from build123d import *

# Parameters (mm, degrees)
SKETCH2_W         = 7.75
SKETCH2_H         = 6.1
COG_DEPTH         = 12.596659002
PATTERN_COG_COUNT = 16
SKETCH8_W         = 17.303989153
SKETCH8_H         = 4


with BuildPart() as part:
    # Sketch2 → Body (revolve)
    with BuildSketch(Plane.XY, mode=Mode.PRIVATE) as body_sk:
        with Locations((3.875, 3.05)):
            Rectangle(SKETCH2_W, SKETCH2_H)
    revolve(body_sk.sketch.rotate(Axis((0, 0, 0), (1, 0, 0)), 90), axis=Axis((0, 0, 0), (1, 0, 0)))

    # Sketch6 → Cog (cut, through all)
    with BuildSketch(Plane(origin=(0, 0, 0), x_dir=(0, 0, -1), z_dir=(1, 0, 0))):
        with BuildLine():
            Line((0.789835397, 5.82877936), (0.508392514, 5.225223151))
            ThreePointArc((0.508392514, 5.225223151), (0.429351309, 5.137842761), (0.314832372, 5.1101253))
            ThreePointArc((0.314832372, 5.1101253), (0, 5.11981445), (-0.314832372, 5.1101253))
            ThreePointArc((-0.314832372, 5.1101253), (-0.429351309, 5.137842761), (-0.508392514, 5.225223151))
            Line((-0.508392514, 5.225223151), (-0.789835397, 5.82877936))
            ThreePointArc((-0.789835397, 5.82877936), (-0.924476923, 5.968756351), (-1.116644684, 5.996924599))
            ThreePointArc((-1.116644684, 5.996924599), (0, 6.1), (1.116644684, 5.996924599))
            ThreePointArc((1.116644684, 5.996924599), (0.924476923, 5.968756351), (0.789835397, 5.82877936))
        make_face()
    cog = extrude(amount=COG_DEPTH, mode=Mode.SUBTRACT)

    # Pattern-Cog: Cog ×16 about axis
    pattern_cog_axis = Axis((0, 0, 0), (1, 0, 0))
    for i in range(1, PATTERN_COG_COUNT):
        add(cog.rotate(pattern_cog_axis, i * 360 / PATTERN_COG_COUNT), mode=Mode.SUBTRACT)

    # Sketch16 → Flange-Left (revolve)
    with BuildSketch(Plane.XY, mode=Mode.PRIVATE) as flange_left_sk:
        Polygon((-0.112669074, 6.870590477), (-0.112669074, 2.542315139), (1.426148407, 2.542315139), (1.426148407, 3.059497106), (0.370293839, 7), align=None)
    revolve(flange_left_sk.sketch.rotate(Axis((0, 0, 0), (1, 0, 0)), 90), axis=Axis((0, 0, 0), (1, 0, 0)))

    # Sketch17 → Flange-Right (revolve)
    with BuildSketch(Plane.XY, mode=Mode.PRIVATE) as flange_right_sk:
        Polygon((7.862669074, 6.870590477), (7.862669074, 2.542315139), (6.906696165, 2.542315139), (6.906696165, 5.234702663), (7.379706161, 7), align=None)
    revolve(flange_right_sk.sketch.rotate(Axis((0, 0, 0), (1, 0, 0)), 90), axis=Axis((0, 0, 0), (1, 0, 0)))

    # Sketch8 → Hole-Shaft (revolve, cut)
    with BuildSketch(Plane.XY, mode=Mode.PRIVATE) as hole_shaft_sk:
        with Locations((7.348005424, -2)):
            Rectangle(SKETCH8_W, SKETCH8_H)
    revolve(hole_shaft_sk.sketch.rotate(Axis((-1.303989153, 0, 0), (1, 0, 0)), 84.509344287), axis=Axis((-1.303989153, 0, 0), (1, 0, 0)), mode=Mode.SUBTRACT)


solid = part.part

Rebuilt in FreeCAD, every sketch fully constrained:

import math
import FreeCAD as App
import Part
import Sketcher
Q = App.Units.Quantity


def add_polygon(sketch, points):
    """Adds a closed chain of lines whose ends are joined by coincident constraints."""
    first, n = sketch.GeometryCount, len(points)
    for a, b in zip(points, points[1:] + points[:1]):
        sketch.addGeometry(Part.LineSegment(App.Vector(*a, 0), App.Vector(*b, 0)), False)
    for i in range(n):
        sketch.addConstraint(Sketcher.Constraint("Coincident", first + i, 2, first + (i + 1) % n, 1))

doc = App.newDocument("Part")
body = doc.addObject("PartDesign::Body", "Body")

# Sketch on XY plane
sketch1 = doc.addObject("Sketcher::SketchObject", "Sketch")
body.addObject(sketch1)
sketch1.AttachmentSupport = (doc.XY_Plane, [""])
sketch1.MapMode = "FlatFace"
add_polygon(sketch1, [(0, 6), (0, 0), (8, 0), (8, 6)])  # lines 0-3
sketch1.addConstraint(Sketcher.Constraint("Vertical", 0))
sketch1.addConstraint(Sketcher.Constraint("Horizontal", 1))
sketch1.addConstraint(Sketcher.Constraint("Vertical", 2))
sketch1.addConstraint(Sketcher.Constraint("Horizontal", 3))
sketch1.addConstraint(Sketcher.Constraint("Coincident", 0, 2, -1, 1))
sketch1.addConstraint(Sketcher.Constraint("DistanceY", 0, 2, 0, 1, Q("6.1 mm")))
sketch1.addConstraint(Sketcher.Constraint("DistanceX", 1, 1, 1, 2, Q("7.75 mm")))
revolution = doc.addObject("PartDesign::Revolution", "Revolution")
body.addObject(revolution)
revolution.Profile = sketch1
revolution.ReferenceAxis = (sketch1, ["H_Axis"])
revolution.Angle = 360

# Sketch on YZ plane
sketch2 = doc.addObject("Sketcher::SketchObject", "Sketch001")
body.addObject(sketch2)
sketch2.AttachmentSupport = (doc.YZ_Plane, [""])
sketch2.MapMode = "FlatFace"
sketch2.addGeometry(Part.LineSegment(App.Vector(5.23, -0.51, 0), App.Vector(5.83, -0.79, 0)), False)
sketch2.addGeometry(Part.ArcOfCircle(Part.Circle(App.Vector(5.7, -1.06, 0), App.Vector(0, 0, 1), 0.3), math.radians(-11), math.radians(65)), False)
sketch2.addGeometry(Part.ArcOfCircle(Part.Circle(App.Vector(0, 0, 0), App.Vector(0, 0, 1), 6.1), math.radians(-11), math.radians(11)), False)
sketch2.addGeometry(Part.ArcOfCircle(Part.Circle(App.Vector(5.7, 1.06, 0), App.Vector(0, 0, 1), 0.3), math.radians(-65), math.radians(11)), False)
sketch2.addGeometry(Part.LineSegment(App.Vector(5.83, 0.79, 0), App.Vector(5.23, 0.51, 0)), False)
sketch2.addGeometry(Part.ArcOfCircle(Part.Circle(App.Vector(5.31, 0.33, 0), App.Vector(0, 0, 1), 0.2), math.radians(115), math.radians(184)), False)
sketch2.addGeometry(Part.ArcOfCircle(Part.Circle(App.Vector(0, 0, 0), App.Vector(0, 0, 1), 5.12), math.radians(-3.53), math.radians(3.53)), False)
sketch2.addGeometry(Part.ArcOfCircle(Part.Circle(App.Vector(5.31, -0.33, 0), App.Vector(0, 0, 1), 0.2), math.radians(176), math.radians(245)), False)
sketch2.addConstraint(Sketcher.Constraint("Tangent", 0, 2, 1, 2))
sketch2.addConstraint(Sketcher.Constraint("Tangent", 1, 1, 2, 1))
sketch2.addConstraint(Sketcher.Constraint("Tangent", 2, 2, 3, 2))
sketch2.addConstraint(Sketcher.Constraint("Tangent", 3, 1, 4, 1))
sketch2.addConstraint(Sketcher.Constraint("Tangent", 4, 2, 5, 1))
sketch2.addConstraint(Sketcher.Constraint("Tangent", 5, 2, 6, 2))
sketch2.addConstraint(Sketcher.Constraint("Tangent", 6, 1, 7, 1))
sketch2.addConstraint(Sketcher.Constraint("Tangent", 7, 2, 0, 1))
sketch2.addConstraint(Sketcher.Constraint("Coincident", 2, 3, -1, 1))
sketch2.addConstraint(Sketcher.Constraint("Coincident", 6, 3, -1, 1))
sketch2.addConstraint(Sketcher.Constraint("Equal", 1, 3))
sketch2.addConstraint(Sketcher.Constraint("Equal", 5, 7))
sketch2.addConstraint(Sketcher.Constraint("Symmetric", 0, 2, 3, 1, -1))
sketch2.addConstraint(Sketcher.Constraint("Radius", 1, Q("0.3 mm")))
sketch2.addConstraint(Sketcher.Constraint("Radius", 2, Q("6.1 mm")))
sketch2.addConstraint(Sketcher.Constraint("Radius", 5, Q("0.2 mm")))
sketch2.addConstraint(Sketcher.Constraint("Angle", 0, Q("-25 deg")))
sketch2.addConstraint(Sketcher.Constraint("Radius", 6, Q("5.119815 mm")))
sketch2.addConstraint(Sketcher.Constraint("DistanceX", 4, 2, 2, 2, Q("0.771701 mm")))
pocket1 = doc.addObject("PartDesign::Pocket", "Pocket")
body.addObject(pocket1)
pocket1.Profile = sketch2
pocket1.Type = "ThroughAll"
pocket1.Reversed = True
doc.recompute()

polarpattern = doc.addObject("PartDesign::PolarPattern", "PolarPattern")
body.addObject(polarpattern)
polarpattern.Originals = [pocket1]
polarpattern.Axis = (doc.X_Axis, [""])
polarpattern.Angle = 360
polarpattern.Occurrences = 16
body.Tip = polarpattern

# Sketch on XY plane
sketch3 = doc.addObject("Sketcher::SketchObject", "Sketch002")
body.addObject(sketch3)
sketch3.AttachmentSupport = (doc.XY_Plane, [""])
sketch3.MapMode = "FlatFace"
add_polygon(sketch3, [(-0.11, 6.87), (-0.11, 2.54), (1.43, 2.54), (1.43, 3.06), (0.37, 7)])  # lines 0-4
sketch3.addConstraint(Sketcher.Constraint("Vertical", 0))
sketch3.addConstraint(Sketcher.Constraint("Horizontal", 1))
sketch3.addConstraint(Sketcher.Constraint("Vertical", 2))
sketch3.addConstraint(Sketcher.Constraint("Perpendicular", 3, 4))
sketch3.addConstraint(Sketcher.Constraint("Angle", 3, Q("105 deg")))
sketch3.addConstraint(Sketcher.Constraint("DistanceY", -1, 1, 3, 2, Q("7 mm")))
sketch3.addConstraint(Sketcher.Constraint("Distance", 4, Q("0.5 mm")))
sketch3.addConstraint(Sketcher.Constraint("DistanceY", 2, 1, 2, 2, Q("0.517182 mm")))
sketch3.addConstraint(Sketcher.Constraint("Distance", 3, Q("4.079509 mm")))
sketch3.addConstraint(Sketcher.Constraint("DistanceX", 0, 2, -1, 1, Q("0.112669 mm")))
revolution2 = doc.addObject("PartDesign::Revolution", "Revolution001")
body.addObject(revolution2)
revolution2.Profile = sketch3
revolution2.ReferenceAxis = (sketch3, ["H_Axis"])
revolution2.Angle = 360

# Sketch on XY plane
sketch4 = doc.addObject("Sketcher::SketchObject", "Sketch003")
body.addObject(sketch4)
sketch4.AttachmentSupport = (doc.XY_Plane, [""])
sketch4.MapMode = "FlatFace"
add_polygon(sketch4, [(7.86, 2.54), (7.86, 6.87), (7.38, 7), (6.91, 5.23), (6.91, 2.54)])  # lines 0-4
sketch4.addConstraint(Sketcher.Constraint("Vertical", 0))
sketch4.addConstraint(Sketcher.Constraint("Vertical", 3))
sketch4.addConstraint(Sketcher.Constraint("Horizontal", 4))
sketch4.addConstraint(Sketcher.Constraint("Perpendicular", 1, 2))
sketch4.addConstraint(Sketcher.Constraint("Angle", 1, Q("165 deg")))
sketch4.addConstraint(Sketcher.Constraint("DistanceY", -1, 1, 1, 2, Q("7 mm")))
sketch4.addConstraint(Sketcher.Constraint("Distance", 1, Q("0.5 mm")))
sketch4.addConstraint(Sketcher.Constraint("Distance", 2, Q("1.82757 mm")))
sketch4.addConstraint(Sketcher.Constraint("DistanceY", 0, 1, 0, 2, Q("4.328275 mm")))
sketch4.addConstraint(Sketcher.Constraint("DistanceX", -1, 1, 0, 2, Q("7.862669 mm")))
revolution3 = doc.addObject("PartDesign::Revolution", "Revolution002")
body.addObject(revolution3)
revolution3.Profile = sketch4
revolution3.ReferenceAxis = (sketch4, ["H_Axis"])
revolution3.Angle = 360

# Sketch on XY plane
sketch5 = doc.addObject("Sketcher::SketchObject", "Sketch004")
body.addObject(sketch5)
sketch5.AttachmentSupport = (doc.XY_Plane, [""])
sketch5.MapMode = "FlatFace"
add_polygon(sketch5, [(-1.3, 0), (-1.3, -4), (16, -4), (16, 0)])  # lines 0-3
sketch5.addConstraint(Sketcher.Constraint("Vertical", 0))
sketch5.addConstraint(Sketcher.Constraint("Horizontal", 1))
sketch5.addConstraint(Sketcher.Constraint("Vertical", 2))
sketch5.addConstraint(Sketcher.Constraint("Horizontal", 3))
sketch5.addConstraint(Sketcher.Constraint("PointOnObject", 2, 2, -1))
sketch5.addConstraint(Sketcher.Constraint("DistanceY", 0, 2, 0, 1, Q("4 mm")))
sketch5.addConstraint(Sketcher.Constraint("DistanceX", -1, 1, 1, 2, Q("16 mm")))
sketch5.addConstraint(Sketcher.Constraint("DistanceX", 1, 1, 1, 2, Q("17.303989 mm")))
groove = doc.addObject("PartDesign::Groove", "Groove")
body.addObject(groove)
groove.Profile = sketch5
groove.ReferenceAxis = (sketch5, ["H_Axis"])
groove.Angle = 360

doc.recompute()
